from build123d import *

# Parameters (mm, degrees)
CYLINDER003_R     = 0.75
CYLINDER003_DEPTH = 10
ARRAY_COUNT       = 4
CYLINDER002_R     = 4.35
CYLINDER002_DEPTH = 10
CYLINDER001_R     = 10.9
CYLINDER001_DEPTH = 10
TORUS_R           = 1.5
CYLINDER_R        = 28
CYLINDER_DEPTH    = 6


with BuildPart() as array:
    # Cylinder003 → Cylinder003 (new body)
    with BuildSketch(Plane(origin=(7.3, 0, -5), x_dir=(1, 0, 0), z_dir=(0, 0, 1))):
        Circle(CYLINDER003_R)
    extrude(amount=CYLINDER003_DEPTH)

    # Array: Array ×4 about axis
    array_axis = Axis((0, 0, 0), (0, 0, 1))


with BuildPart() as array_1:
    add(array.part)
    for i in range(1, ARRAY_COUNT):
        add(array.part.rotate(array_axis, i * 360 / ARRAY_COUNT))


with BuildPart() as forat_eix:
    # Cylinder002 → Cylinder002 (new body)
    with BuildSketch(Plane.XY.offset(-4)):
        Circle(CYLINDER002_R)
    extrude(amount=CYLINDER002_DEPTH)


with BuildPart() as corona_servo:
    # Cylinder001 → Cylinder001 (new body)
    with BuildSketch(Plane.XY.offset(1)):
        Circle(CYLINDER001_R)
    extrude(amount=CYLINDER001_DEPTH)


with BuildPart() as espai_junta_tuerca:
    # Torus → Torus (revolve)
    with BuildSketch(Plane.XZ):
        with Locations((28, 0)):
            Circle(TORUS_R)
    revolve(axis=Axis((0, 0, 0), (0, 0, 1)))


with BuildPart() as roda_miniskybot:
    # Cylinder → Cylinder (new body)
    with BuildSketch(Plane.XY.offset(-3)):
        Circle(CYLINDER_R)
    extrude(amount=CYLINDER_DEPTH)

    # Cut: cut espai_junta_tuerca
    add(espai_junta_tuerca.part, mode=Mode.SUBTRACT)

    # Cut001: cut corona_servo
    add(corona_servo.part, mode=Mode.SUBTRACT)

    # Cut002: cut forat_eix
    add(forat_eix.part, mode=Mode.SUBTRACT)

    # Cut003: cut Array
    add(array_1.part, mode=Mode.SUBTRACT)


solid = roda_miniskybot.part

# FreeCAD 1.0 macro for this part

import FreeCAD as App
import Part
import Sketcher
Q = App.Units.Quantity

doc = App.newDocument("Part")
body = doc.addObject("PartDesign::Body", "Body")

# Sketch on XY plane
sketch1 = doc.addObject("Sketcher::SketchObject", "Sketch")
body.addObject(sketch1)
sketch1.AttachmentSupport = (doc.XY_Plane, [""])
sketch1.MapMode = "FlatFace"
sketch1.AttachmentOffset = App.Placement(App.Vector(0, 0, -5), App.Rotation())
sketch1.addGeometry(Part.Circle(App.Vector(7.3, 0, 0), App.Vector(0, 0, 1), 0.8), False)
sketch1.addConstraint([
    Sketcher.Constraint("PointOnObject", 0, 3, -1),
    Sketcher.Constraint("Diameter", 0, Q("1.5 mm")),
    Sketcher.Constraint("DistanceX", -1, 1, 0, 3, Q("7.3 mm")),
])
pad1 = doc.addObject("PartDesign::Pad", "Pad")
body.addObject(pad1)
pad1.Profile = sketch1
pad1.Length = 10
body2 = doc.addObject("PartDesign::Body", "Body001")
body2.AllowCompound = True
doc.recompute()

body2.BaseFeature = body
doc.recompute()

body3 = doc.addObject("PartDesign::Body", "Body002")
body3.BaseFeature = body
body3.Placement = App.Placement(App.Vector(0, 0, 0), App.Rotation(App.Vector(0, 0, 1), 90))
boolean = doc.addObject("PartDesign::Boolean", "Boolean")
body2.addObject(boolean)
boolean.Type = "Fuse"
boolean.addObjects([body3])
doc.recompute()

body4 = doc.addObject("PartDesign::Body", "Body003")
body4.BaseFeature = body
body4.Placement = App.Placement(App.Vector(0, 0, 0), App.Rotation(App.Vector(0, 0, 1), 180))
boolean2 = doc.addObject("PartDesign::Boolean", "Boolean001")
body2.addObject(boolean2)
boolean2.Type = "Fuse"
boolean2.addObjects([body4])
doc.recompute()

body.Placement = App.Placement(App.Vector(0, 0, 0), App.Rotation(App.Vector(0, 0, 1), 270))
boolean3 = doc.addObject("PartDesign::Boolean", "Boolean002")
body2.addObject(boolean3)
boolean3.Type = "Fuse"
boolean3.addObjects([body])
body5 = doc.addObject("PartDesign::Body", "Body004")

# Sketch on XY plane
sketch2 = doc.addObject("Sketcher::SketchObject", "Sketch001")
body5.addObject(sketch2)
sketch2.AttachmentSupport = (doc.getObject("XY_Plane004"), [""])
sketch2.MapMode = "FlatFace"
sketch2.AttachmentOffset = App.Placement(App.Vector(0, 0, -4), App.Rotation())
sketch2.addGeometry(Part.Circle(App.Vector(0, 0, 0), App.Vector(0, 0, 1), 4.3), False)
sketch2.addConstraint([
    Sketcher.Constraint("Coincident", 0, 3, -1, 1),
    Sketcher.Constraint("Diameter", 0, Q("8.7 mm")),
])
pad2 = doc.addObject("PartDesign::Pad", "Pad001")
body5.addObject(pad2)
pad2.Profile = sketch2
pad2.Length = 10
body6 = doc.addObject("PartDesign::Body", "Body005")

# Sketch on XY plane
sketch3 = doc.addObject("Sketcher::SketchObject", "Sketch002")
body6.addObject(sketch3)
sketch3.AttachmentSupport = (doc.getObject("XY_Plane005"), [""])
sketch3.MapMode = "FlatFace"
sketch3.AttachmentOffset = App.Placement(App.Vector(0, 0, 1), App.Rotation())
sketch3.addGeometry(Part.Circle(App.Vector(0, 0, 0), App.Vector(0, 0, 1), 11), False)
sketch3.addConstraint([
    Sketcher.Constraint("Coincident", 0, 3, -1, 1),
    Sketcher.Constraint("Diameter", 0, Q("21.8 mm")),
])
pad3 = doc.addObject("PartDesign::Pad", "Pad002")
body6.addObject(pad3)
pad3.Profile = sketch3
pad3.Length = 10
body7 = doc.addObject("PartDesign::Body", "Body006")

# Sketch on XZ plane
sketch4 = doc.addObject("Sketcher::SketchObject", "Sketch003")
body7.addObject(sketch4)
sketch4.AttachmentSupport = (doc.getObject("XZ_Plane006"), [""])
sketch4.MapMode = "FlatFace"
sketch4.addGeometry(Part.Circle(App.Vector(28, 0, 0), App.Vector(0, 0, 1), 1.5), False)
sketch4.addConstraint([
    Sketcher.Constraint("PointOnObject", 0, 3, -1),
    Sketcher.Constraint("Diameter", 0, Q("3 mm")),
    Sketcher.Constraint("DistanceX", -1, 1, 0, 3, Q("28 mm")),
])
revolution = doc.addObject("PartDesign::Revolution", "Revolution")
body7.addObject(revolution)
revolution.Profile = sketch4
revolution.ReferenceAxis = (sketch4, ["V_Axis"])
revolution.Angle = 360
body8 = doc.addObject("PartDesign::Body", "Body007")

# Sketch on XY plane
sketch5 = doc.addObject("Sketcher::SketchObject", "Sketch004")
body8.addObject(sketch5)
sketch5.AttachmentSupport = (doc.getObject("XY_Plane007"), [""])
sketch5.MapMode = "FlatFace"
sketch5.AttachmentOffset = App.Placement(App.Vector(0, 0, -3), App.Rotation())
sketch5.addGeometry(Part.Circle(App.Vector(0, 0, 0), App.Vector(0, 0, 1), 28), False)
sketch5.addConstraint([
    Sketcher.Constraint("Coincident", 0, 3, -1, 1),
    Sketcher.Constraint("Diameter", 0, Q("56 mm")),
])
pad4 = doc.addObject("PartDesign::Pad", "Pad003")
body8.addObject(pad4)
pad4.Profile = sketch5
pad4.Length = 6
doc.recompute()

boolean4 = doc.addObject("PartDesign::Boolean", "Boolean003")
body8.addObject(boolean4)
boolean4.Type = "Cut"
boolean4.addObjects([body7])
doc.recompute()

boolean5 = doc.addObject("PartDesign::Boolean", "Boolean004")
body8.addObject(boolean5)
boolean5.Type = "Cut"
boolean5.addObjects([body6])
doc.recompute()

boolean6 = doc.addObject("PartDesign::Boolean", "Boolean005")
body8.addObject(boolean6)
boolean6.Type = "Cut"
boolean6.addObjects([body5])
doc.recompute()

boolean7 = doc.addObject("PartDesign::Boolean", "Boolean006")
body8.addObject(boolean7)
boolean7.Type = "Cut"
boolean7.addObjects([body2])

doc.recompute()
